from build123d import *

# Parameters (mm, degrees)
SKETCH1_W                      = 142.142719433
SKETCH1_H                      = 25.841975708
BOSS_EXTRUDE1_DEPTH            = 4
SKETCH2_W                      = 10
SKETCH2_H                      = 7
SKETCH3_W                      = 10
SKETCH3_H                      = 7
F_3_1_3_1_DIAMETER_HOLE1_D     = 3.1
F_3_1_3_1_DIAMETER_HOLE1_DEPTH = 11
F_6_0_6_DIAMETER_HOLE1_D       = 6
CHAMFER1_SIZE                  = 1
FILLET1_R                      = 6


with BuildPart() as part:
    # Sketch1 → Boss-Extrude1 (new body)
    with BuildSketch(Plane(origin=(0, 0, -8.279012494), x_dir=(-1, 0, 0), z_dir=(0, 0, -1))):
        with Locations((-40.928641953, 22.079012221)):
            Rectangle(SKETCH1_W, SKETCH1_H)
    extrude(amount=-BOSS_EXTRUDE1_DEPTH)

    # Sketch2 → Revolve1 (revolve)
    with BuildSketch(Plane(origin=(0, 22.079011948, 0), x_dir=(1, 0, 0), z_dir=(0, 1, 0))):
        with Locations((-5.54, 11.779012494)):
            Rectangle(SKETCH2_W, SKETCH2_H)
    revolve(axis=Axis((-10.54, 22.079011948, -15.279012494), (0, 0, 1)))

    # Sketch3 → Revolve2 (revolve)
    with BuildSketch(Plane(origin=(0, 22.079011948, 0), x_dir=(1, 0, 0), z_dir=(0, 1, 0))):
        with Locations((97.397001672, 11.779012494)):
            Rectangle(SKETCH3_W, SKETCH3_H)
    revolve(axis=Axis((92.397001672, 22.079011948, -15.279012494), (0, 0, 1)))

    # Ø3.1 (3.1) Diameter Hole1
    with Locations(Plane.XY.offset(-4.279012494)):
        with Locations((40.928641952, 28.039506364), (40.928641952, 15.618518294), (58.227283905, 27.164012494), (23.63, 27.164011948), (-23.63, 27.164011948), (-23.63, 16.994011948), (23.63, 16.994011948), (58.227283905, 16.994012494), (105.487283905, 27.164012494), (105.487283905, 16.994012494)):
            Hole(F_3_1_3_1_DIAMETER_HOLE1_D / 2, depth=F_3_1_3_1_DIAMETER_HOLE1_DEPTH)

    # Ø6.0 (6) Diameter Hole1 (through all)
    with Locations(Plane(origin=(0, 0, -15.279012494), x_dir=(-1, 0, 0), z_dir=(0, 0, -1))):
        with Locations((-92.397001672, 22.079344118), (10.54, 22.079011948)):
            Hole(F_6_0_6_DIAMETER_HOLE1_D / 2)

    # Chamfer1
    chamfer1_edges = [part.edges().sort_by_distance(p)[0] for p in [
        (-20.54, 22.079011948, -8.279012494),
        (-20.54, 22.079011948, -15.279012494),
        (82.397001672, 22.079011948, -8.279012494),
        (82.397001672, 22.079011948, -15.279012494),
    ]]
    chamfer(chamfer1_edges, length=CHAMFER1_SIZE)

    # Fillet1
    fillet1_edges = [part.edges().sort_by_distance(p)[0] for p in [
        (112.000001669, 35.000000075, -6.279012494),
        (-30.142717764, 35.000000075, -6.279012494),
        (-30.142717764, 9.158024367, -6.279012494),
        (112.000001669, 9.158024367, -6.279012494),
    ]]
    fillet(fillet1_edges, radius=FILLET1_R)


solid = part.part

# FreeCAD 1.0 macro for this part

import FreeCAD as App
import Part
import Sketcher
from FreeCAD import Vector
Q = App.Units.Quantity


def edges_at(feature, points):
    """Names of the edges that pass closest to the given points."""
    edges = feature.Shape.Edges
    near = lambda p: min(range(len(edges)), key=lambda i: edges[i].distToShape(Part.Vertex(*p))[0])
    return sorted({f"Edge{near(p) + 1}" for p in points})

doc = App.newDocument("Part")
params = doc.addObject("Spreadsheet::Sheet", "Params")
for row, (alias, value) in enumerate([
    ("pad1_length", "4 mm"),
    ("sketch2_width", "10 mm"),
    ("sketch2_height", "7 mm"),
    ("revolution_angle", "360 deg"),
    ("sketch3_width", "10 mm"),
    ("sketch3_height", "7 mm"),
    ("revolution2_angle", "360 deg"),
    ("sketch4_diameter", "3.1 mm"),
    ("hole_diameter", "3.1 mm"),
    ("hole_depth", "11 mm"),
    ("sketch5_diameter", "6 mm"),
    ("hole2_diameter", "6 mm"),
    ("chamfer_size", "1 mm"),
    ("fillet_radius", "6 mm"),
], start=1):
    params.set(f"A{row}", alias)
    params.set(f"B{row}", "=" + value)
    params.setAlias(f"B{row}", alias)

body = doc.addObject("PartDesign::Body", "Body")

sketch1 = body.newObject("Sketcher::SketchObject", "Sketch")
sketch1.AttachmentSupport = (doc.getObject("XY_Plane"), [""])
sketch1.MapMode = "FlatFace"
sketch1.AttachmentOffset = App.Placement(Vector(0, 0, -8.279012), App.Rotation())
sketch1.addGeometry([
    Part.LineSegment(Vector(112, 35, 0), Vector(112, 9, 0)),
    Part.LineSegment(Vector(112, 9, 0), Vector(-30, 9, 0)),
    Part.LineSegment(Vector(-30, 9, 0), Vector(-30, 35, 0)),
    Part.LineSegment(Vector(-30, 35, 0), Vector(112, 35, 0)),
], False)
sketch1.addConstraint([
    Sketcher.Constraint("Coincident", 0, 2, 1, 1),
    Sketcher.Constraint("Coincident", 1, 2, 2, 1),
    Sketcher.Constraint("Coincident", 2, 2, 3, 1),
    Sketcher.Constraint("Coincident", 3, 2, 0, 1),
    Sketcher.Constraint("Vertical", 0),
    Sketcher.Constraint("Horizontal", 1),
    Sketcher.Constraint("Vertical", 2),
    Sketcher.Constraint("Horizontal", 3),
    Sketcher.Constraint("DistanceX", -1, 1, 0, 2, Q("112.000002 mm")),
    Sketcher.Constraint("DistanceY", -1, 1, 2, 2, Q("35 mm")),
    Sketcher.Constraint("DistanceX", 1, 2, 1, 1, Q("142.142719 mm")),
    Sketcher.Constraint("DistanceY", 0, 2, 0, 1, Q("25.841976 mm")),
])
pad1 = body.newObject("PartDesign::Pad", "Pad")
pad1.Profile = sketch1
pad1.setExpression("Length", "Params.pad1_length")

sketch2 = body.newObject("Sketcher::SketchObject", "Sketch001")
sketch2.AttachmentSupport = (doc.getObject("XZ_Plane"), [""])
sketch2.MapMode = "FlatFace"
sketch2.AttachmentOffset = App.Placement(Vector(0, 0, -22.079012), App.Rotation())
sketch2.addGeometry([
    Part.LineSegment(Vector(-11, -15, 0), Vector(-11, -8, 0)),
    Part.LineSegment(Vector(-11, -8, 0), Vector(-1, -8, 0)),
    Part.LineSegment(Vector(-1, -8, 0), Vector(-1, -15, 0)),
    Part.LineSegment(Vector(-1, -15, 0), Vector(-11, -15, 0)),
], False)
sketch2.addGeometry(Part.LineSegment(Vector(-11, -15, 0), Vector(-11, -8, 0)), True)
sketch2.addConstraint([
    Sketcher.Constraint("Coincident", 0, 2, 1, 1),
    Sketcher.Constraint("Coincident", 1, 2, 2, 1),
    Sketcher.Constraint("Coincident", 2, 2, 3, 1),
    Sketcher.Constraint("Coincident", 3, 2, 0, 1),
    Sketcher.Constraint("Vertical", 0),
    Sketcher.Constraint("Horizontal", 1),
    Sketcher.Constraint("Vertical", 2),
    Sketcher.Constraint("Horizontal", 3),
    Sketcher.Constraint("Vertical", 4),
    Sketcher.Constraint("Coincident", 4, 1, 3, 2),
    Sketcher.Constraint("Horizontal", 1, 2, 4, 2),
    Sketcher.Constraint("DistanceX", 1, 1, 1, 2, Q("10 mm")),
    Sketcher.Constraint("DistanceY", 0, 1, 0, 2, Q("7 mm")),
    Sketcher.Constraint("DistanceX", 0, 2, -1, 1, Q("10.54 mm")),
    Sketcher.Constraint("DistanceY", 0, 2, -1, 1, Q("8.279012 mm")),
])
sketch2.setExpression("Constraints[11]", "Params.sketch2_width")
sketch2.setExpression("Constraints[12]", "Params.sketch2_height")
revolution = body.newObject("PartDesign::Revolution", "Revolution")
revolution.Profile = sketch2
revolution.ReferenceAxis = (sketch2, ["Axis0"])
revolution.setExpression("Angle", "Params.revolution_angle")

sketch3 = body.newObject("Sketcher::SketchObject", "Sketch002")
sketch3.AttachmentSupport = (doc.getObject("XZ_Plane"), [""])
sketch3.MapMode = "FlatFace"
sketch3.AttachmentOffset = App.Placement(Vector(0, 0, -22.079012), App.Rotation())
sketch3.addGeometry([
    Part.LineSegment(Vector(92, -15, 0), Vector(92, -8, 0)),
    Part.LineSegment(Vector(92, -8, 0), Vector(102, -8, 0)),
    Part.LineSegment(Vector(102, -8, 0), Vector(102, -15, 0)),
    Part.LineSegment(Vector(102, -15, 0), Vector(92, -15, 0)),
], False)
sketch3.addGeometry(Part.LineSegment(Vector(92, -15, 0), Vector(92, -8, 0)), True)
sketch3.addConstraint([
    Sketcher.Constraint("Coincident", 0, 2, 1, 1),
    Sketcher.Constraint("Coincident", 1, 2, 2, 1),
    Sketcher.Constraint("Coincident", 2, 2, 3, 1),
    Sketcher.Constraint("Coincident", 3, 2, 0, 1),
    Sketcher.Constraint("Vertical", 0),
    Sketcher.Constraint("Horizontal", 1),
    Sketcher.Constraint("Vertical", 2),
    Sketcher.Constraint("Horizontal", 3),
    Sketcher.Constraint("Vertical", 4),
    Sketcher.Constraint("Coincident", 4, 1, 3, 2),
    Sketcher.Constraint("Horizontal", 1, 2, 4, 2),
    Sketcher.Constraint("DistanceX", 1, 1, 1, 2, Q("10 mm")),
    Sketcher.Constraint("DistanceY", 0, 1, 0, 2, Q("7 mm")),
    Sketcher.Constraint("DistanceX", -1, 1, 0, 2, Q("92.397002 mm")),
    Sketcher.Constraint("DistanceY", 0, 2, -1, 1, Q("8.279012 mm")),
])
sketch3.setExpression("Constraints[11]", "Params.sketch3_width")
sketch3.setExpression("Constraints[12]", "Params.sketch3_height")
revolution2 = body.newObject("PartDesign::Revolution", "Revolution001")
revolution2.Profile = sketch3
revolution2.ReferenceAxis = (sketch3, ["Axis0"])
revolution2.setExpression("Angle", "Params.revolution2_angle")

sketch4 = body.newObject("Sketcher::SketchObject", "Sketch003")
sketch4.AttachmentSupport = (doc.getObject("XY_Plane"), [""])
sketch4.MapMode = "FlatFace"
sketch4.AttachmentOffset = App.Placement(Vector(0, 0, -4.279012), App.Rotation())
sketch4.addGeometry([
    Part.Circle(Vector(40.9, 28, 0), Vector(0, 0, 1), 1.6),
    Part.Circle(Vector(40.9, 15.6, 0), Vector(0, 0, 1), 1.6),
    Part.Circle(Vector(58.2, 27.2, 0), Vector(0, 0, 1), 1.6),
    Part.Circle(Vector(23.6, 27.2, 0), Vector(0, 0, 1), 1.6),
    Part.Circle(Vector(-23.6, 27.2, 0), Vector(0, 0, 1), 1.6),
    Part.Circle(Vector(-23.6, 17, 0), Vector(0, 0, 1), 1.6),
    Part.Circle(Vector(23.6, 17, 0), Vector(0, 0, 1), 1.6),
    Part.Circle(Vector(58.2, 17, 0), Vector(0, 0, 1), 1.6),
    Part.Circle(Vector(105.5, 27.2, 0), Vector(0, 0, 1), 1.6),
    Part.Circle(Vector(105.5, 17, 0), Vector(0, 0, 1), 1.6),
], False)
sketch4.addConstraint([
    Sketcher.Constraint("Equal", 0, 1),
    Sketcher.Constraint("Equal", 1, 2),
    Sketcher.Constraint("Equal", 2, 3),
    Sketcher.Constraint("Equal", 3, 4),
    Sketcher.Constraint("Equal", 4, 5),
    Sketcher.Constraint("Equal", 5, 6),
    Sketcher.Constraint("Equal", 6, 7),
    Sketcher.Constraint("Equal", 7, 8),
    Sketcher.Constraint("Equal", 8, 9),
    Sketcher.Constraint("Symmetric", 3, 3, 4, 3, -2),
    Sketcher.Constraint("Symmetric", 5, 3, 6, 3, -2),
    Sketcher.Constraint("Horizontal", 2, 3, 3, 3),
    Sketcher.Constraint("Horizontal", 6, 3, 7, 3),
    Sketcher.Constraint("Horizontal", 4, 3, 8, 3),
    Sketcher.Constraint("Horizontal", 7, 3, 9, 3),
    Sketcher.Constraint("Vertical", 0, 3, 1, 3),
    Sketcher.Constraint("Vertical", 4, 3, 5, 3),
    Sketcher.Constraint("Vertical", 2, 3, 7, 3),
    Sketcher.Constraint("Vertical", 8, 3, 9, 3),
    Sketcher.Constraint("Diameter", 0, Q("3.1 mm")),
    Sketcher.Constraint("DistanceX", -1, 1, 3, 3, Q("23.63 mm")),
    Sketcher.Constraint("DistanceY", 5, 3, 4, 3, Q("10.17 mm")),
    Sketcher.Constraint("DistanceX", 2, 3, 8, 3, Q("47.26 mm")),
    Sketcher.Constraint("DistanceX", -1, 1, 0, 3, Q("40.928642 mm")),
    Sketcher.Constraint("DistanceY", -1, 1, 1, 3, Q("15.618518 mm")),
    Sketcher.Constraint("DistanceY", -1, 1, 3, 3, Q("27.164012 mm")),
    Sketcher.Constraint("DistanceY", 1, 3, 0, 3, Q("12.420988 mm")),
    Sketcher.Constraint("DistanceX", 0, 3, 2, 3, Q("17.298642 mm")),
])
sketch4.setExpression("Constraints[19]", "Params.sketch4_diameter")
doc.recompute()
hole = body.newObject("PartDesign::Hole", "Hole")
hole.Profile = sketch4
hole.ThreadType = "None"
hole.setExpression("Diameter", "Params.hole_diameter")
hole.DepthType = "Dimension"
hole.setExpression("Depth", "Params.hole_depth")
hole.DrillPoint = "Flat"

sketch5 = body.newObject("Sketcher::SketchObject", "Sketch004")
sketch5.AttachmentSupport = (doc.getObject("XY_Plane"), [""])
sketch5.MapMode = "FlatFace"
sketch5.AttachmentOffset = App.Placement(Vector(0, 0, -15.279012), App.Rotation())
sketch5.addGeometry([
    Part.Circle(Vector(92.4, 22.1, 0), Vector(0, 0, 1), 3),
    Part.Circle(Vector(-10.5, 22.1, 0), Vector(0, 0, 1), 3),
], False)
sketch5.addConstraint([
    Sketcher.Constraint("Equal", 0, 1),
    Sketcher.Constraint("Diameter", 0, Q("6 mm")),
    Sketcher.Constraint("DistanceX", 1, 3, -1, 1, Q("10.54 mm")),
    Sketcher.Constraint("DistanceX", -1, 1, 0, 3, Q("92.397002 mm")),
    Sketcher.Constraint("DistanceY", -1, 1, 1, 3, Q("22.079012 mm")),
    Sketcher.Constraint("DistanceY", -1, 1, 0, 3, Q("22.079344 mm")),
])
sketch5.setExpression("Constraints[1]", "Params.sketch5_diameter")
doc.recompute()
hole2 = body.newObject("PartDesign::Hole", "Hole001")
hole2.Profile = sketch5
hole2.ThreadType = "None"
hole2.setExpression("Diameter", "Params.hole2_diameter")
hole2.DepthType = "ThroughAll"
hole2.Reversed = True
doc.recompute()

chamfer = body.newObject("PartDesign::Chamfer", "Chamfer")
chamfer.Base = (hole2, edges_at(hole2, [
    (-20.54, 22.079, -8.279),
    (-20.54, 22.079, -15.279),
    (82.397, 22.079, -8.279),
    (82.397, 22.079, -15.279),
]))
chamfer.setExpression("Size", "Params.chamfer_size")
doc.recompute()

fillet = body.newObject("PartDesign::Fillet", "Fillet")
fillet.Base = (chamfer, edges_at(chamfer, [
    (112, 35, -6.279),
    (-30.143, 35, -6.279),
    (-30.143, 9.158, -6.279),
    (112, 9.158, -6.279),
]))
fillet.setExpression("Radius", "Params.fillet_radius")

doc.recompute()
